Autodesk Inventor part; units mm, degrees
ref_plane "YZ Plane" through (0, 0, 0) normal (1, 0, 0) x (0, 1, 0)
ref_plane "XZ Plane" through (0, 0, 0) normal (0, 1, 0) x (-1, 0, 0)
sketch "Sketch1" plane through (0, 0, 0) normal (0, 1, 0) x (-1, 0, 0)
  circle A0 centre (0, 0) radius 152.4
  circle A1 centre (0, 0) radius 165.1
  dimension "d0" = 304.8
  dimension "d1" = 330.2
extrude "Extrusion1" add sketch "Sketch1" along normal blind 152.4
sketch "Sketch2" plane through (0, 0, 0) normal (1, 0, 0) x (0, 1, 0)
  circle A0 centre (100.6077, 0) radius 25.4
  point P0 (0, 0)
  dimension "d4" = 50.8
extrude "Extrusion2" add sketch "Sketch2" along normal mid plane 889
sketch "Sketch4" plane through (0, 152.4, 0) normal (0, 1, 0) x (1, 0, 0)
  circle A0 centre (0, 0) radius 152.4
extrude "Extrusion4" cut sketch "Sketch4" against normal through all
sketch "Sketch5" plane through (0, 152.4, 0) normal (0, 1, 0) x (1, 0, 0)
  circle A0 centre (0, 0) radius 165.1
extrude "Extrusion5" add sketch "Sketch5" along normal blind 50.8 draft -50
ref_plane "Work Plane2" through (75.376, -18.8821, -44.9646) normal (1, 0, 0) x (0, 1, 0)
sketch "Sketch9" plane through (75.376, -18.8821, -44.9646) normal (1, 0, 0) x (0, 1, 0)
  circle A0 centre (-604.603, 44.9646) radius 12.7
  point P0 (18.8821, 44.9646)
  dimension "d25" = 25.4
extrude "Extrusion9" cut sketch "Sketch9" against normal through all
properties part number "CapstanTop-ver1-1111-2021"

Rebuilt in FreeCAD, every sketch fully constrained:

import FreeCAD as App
import Part
import Sketcher
from FreeCAD import Vector
Q = App.Units.Quantity

doc = App.newDocument("Part")
body = doc.addObject("PartDesign::Body", "Body")

# Sketch on XZ plane
sketch1 = doc.addObject("Sketcher::SketchObject", "Sketch")
body.addObject(sketch1)
sketch1.AttachmentSupport = (doc.XZ_Plane, [""])
sketch1.MapMode = "FlatFace"
sketch1.addGeometry(Part.Circle(Vector(0, 0, 0), Vector(0, 0, 1), 165), False)
sketch1.addGeometry(Part.Circle(Vector(0, 0, 0), Vector(0, 0, 1), 152), False)
sketch1.addConstraint(Sketcher.Constraint("Coincident", 0, 3, -1, 1))
sketch1.addConstraint(Sketcher.Constraint("Coincident", 1, 3, -1, 1))
sketch1.addConstraint(Sketcher.Constraint("Diameter", 0, Q("13 in")))
sketch1.addConstraint(Sketcher.Constraint("Diameter", 1, Q("12 in")))
pad1 = doc.addObject("PartDesign::Pad", "Pad")
body.addObject(pad1)
pad1.Profile = sketch1
pad1.Length = Q("6 in")
pad1.Reversed = True

# Sketch on YZ plane
sketch2 = doc.addObject("Sketcher::SketchObject", "Sketch001")
body.addObject(sketch2)
sketch2.AttachmentSupport = (doc.YZ_Plane, [""])
sketch2.MapMode = "FlatFace"
sketch2.addGeometry(Part.Circle(Vector(101, 0, 0), Vector(0, 0, 1), 25), False)
sketch2.addConstraint(Sketcher.Constraint("PointOnObject", 0, 3, -1))
sketch2.addConstraint(Sketcher.Constraint("Diameter", 0, Q("2 in")))
sketch2.addConstraint(Sketcher.Constraint("DistanceX", -1, 1, 0, 3, Q("100.6077 mm")))
pad2 = doc.addObject("PartDesign::Pad", "Pad001")
body.addObject(pad2)
pad2.Profile = sketch2
pad2.Length = Q("35 in")
pad2.Midplane = True

# Sketch on XZ plane
sketch3 = doc.addObject("Sketcher::SketchObject", "Sketch002")
body.addObject(sketch3)
sketch3.AttachmentSupport = (doc.XZ_Plane, [""])
sketch3.MapMode = "FlatFace"
sketch3.AttachmentOffset = App.Placement(Vector(0, 0, -6 * 25.4), App.Rotation())
sketch3.addGeometry(Part.Circle(Vector(0, 0, 0), Vector(0, 0, 1), 152), False)
sketch3.addConstraint(Sketcher.Constraint("Coincident", 0, 3, -1, 1))
sketch3.addConstraint(Sketcher.Constraint("Diameter", 0, Q("12 in")))
pocket1 = doc.addObject("PartDesign::Pocket", "Pocket")
body.addObject(pocket1)
pocket1.Profile = sketch3
pocket1.Type = "ThroughAll"
pocket1.Reversed = True

# Sketch on XZ plane
sketch4 = doc.addObject("Sketcher::SketchObject", "Sketch003")
body.addObject(sketch4)
sketch4.AttachmentSupport = (doc.XZ_Plane, [""])
sketch4.MapMode = "FlatFace"
sketch4.AttachmentOffset = App.Placement(Vector(0, 0, -6 * 25.4), App.Rotation())
sketch4.addGeometry(Part.Circle(Vector(0, 0, 0), Vector(0, 0, 1), 165), False)
sketch4.addConstraint(Sketcher.Constraint("Coincident", 0, 3, -1, 1))
sketch4.addConstraint(Sketcher.Constraint("Diameter", 0, Q("13 in")))
pad3 = doc.addObject("PartDesign::Pad", "Pad002")
body.addObject(pad3)
pad3.Profile = sketch4
pad3.Length = Q("2 in")
pad3.Reversed = True
pad3.TaperAngle = -50

# Sketch on YZ plane
sketch5 = doc.addObject("Sketcher::SketchObject", "Sketch004")
body.addObject(sketch5)
sketch5.AttachmentSupport = (doc.YZ_Plane, [""])
sketch5.MapMode = "FlatFace"
sketch5.AttachmentOffset = App.Placement(Vector(0, 0, 75.376), App.Rotation())
sketch5.addGeometry(Part.Circle(Vector(-623, 0, 0), Vector(0, 0, 1), 13), False)
sketch5.addConstraint(Sketcher.Constraint("PointOnObject", 0, 3, -1))
sketch5.addConstraint(Sketcher.Constraint("Diameter", 0, Q("1 in")))
sketch5.addConstraint(Sketcher.Constraint("DistanceX", 0, 3, -1, 1, Q("623.485 mm")))
pocket2 = doc.addObject("PartDesign::Pocket", "Pocket001")
body.addObject(pocket2)
pocket2.Profile = sketch5
pocket2.Type = "ThroughAll"

doc.recompute()
